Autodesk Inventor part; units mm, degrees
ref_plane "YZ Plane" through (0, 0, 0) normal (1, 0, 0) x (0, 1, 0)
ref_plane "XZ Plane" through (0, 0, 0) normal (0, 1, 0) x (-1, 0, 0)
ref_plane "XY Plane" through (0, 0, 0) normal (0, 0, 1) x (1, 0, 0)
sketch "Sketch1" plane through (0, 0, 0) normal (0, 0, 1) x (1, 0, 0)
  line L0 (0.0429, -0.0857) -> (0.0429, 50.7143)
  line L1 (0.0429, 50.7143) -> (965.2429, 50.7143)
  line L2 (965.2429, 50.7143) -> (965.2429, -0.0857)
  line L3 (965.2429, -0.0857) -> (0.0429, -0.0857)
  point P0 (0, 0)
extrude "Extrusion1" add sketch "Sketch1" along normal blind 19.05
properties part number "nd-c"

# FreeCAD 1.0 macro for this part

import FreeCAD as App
import Part
import Sketcher
Q = App.Units.Quantity

doc = App.newDocument("Part")
body = doc.addObject("PartDesign::Body", "Body")

sketch1 = body.newObject("Sketcher::SketchObject", "Sketch")
sketch1.AttachmentSupport = (doc.getObject("XY_Plane"), [""])
sketch1.MapMode = "FlatFace"
sketch1.addGeometry([
    Part.LineSegment(App.Vector(0, 51, 0), App.Vector(0, 0, 0)),
    Part.LineSegment(App.Vector(0, 0, 0), App.Vector(965, 0, 0)),
    Part.LineSegment(App.Vector(965, 0, 0), App.Vector(965, 51, 0)),
    Part.LineSegment(App.Vector(965, 51, 0), App.Vector(0, 51, 0)),
], False)
sketch1.addConstraint([
    Sketcher.Constraint("Coincident", 0, 2, 1, 1),
    Sketcher.Constraint("Coincident", 1, 2, 2, 1),
    Sketcher.Constraint("Coincident", 2, 2, 3, 1),
    Sketcher.Constraint("Coincident", 3, 2, 0, 1),
    Sketcher.Constraint("Vertical", 0),
    Sketcher.Constraint("Horizontal", 1),
    Sketcher.Constraint("Vertical", 2),
    Sketcher.Constraint("Horizontal", 3),
    Sketcher.Constraint("DistanceX", 1, 1, 1, 2, Q("38 in")),
    Sketcher.Constraint("DistanceY", 0, 2, 0, 1, Q("2 in")),
    Sketcher.Constraint("DistanceX", -1, 1, 0, 2, Q("0.0017 in")),
    Sketcher.Constraint("DistanceY", 0, 2, -1, 1, Q("0.0857 mm")),
])
pad1 = body.newObject("PartDesign::Pad", "Pad")
pad1.Profile = sketch1
pad1.Length = Q("0.75 in")

doc.recompute()
